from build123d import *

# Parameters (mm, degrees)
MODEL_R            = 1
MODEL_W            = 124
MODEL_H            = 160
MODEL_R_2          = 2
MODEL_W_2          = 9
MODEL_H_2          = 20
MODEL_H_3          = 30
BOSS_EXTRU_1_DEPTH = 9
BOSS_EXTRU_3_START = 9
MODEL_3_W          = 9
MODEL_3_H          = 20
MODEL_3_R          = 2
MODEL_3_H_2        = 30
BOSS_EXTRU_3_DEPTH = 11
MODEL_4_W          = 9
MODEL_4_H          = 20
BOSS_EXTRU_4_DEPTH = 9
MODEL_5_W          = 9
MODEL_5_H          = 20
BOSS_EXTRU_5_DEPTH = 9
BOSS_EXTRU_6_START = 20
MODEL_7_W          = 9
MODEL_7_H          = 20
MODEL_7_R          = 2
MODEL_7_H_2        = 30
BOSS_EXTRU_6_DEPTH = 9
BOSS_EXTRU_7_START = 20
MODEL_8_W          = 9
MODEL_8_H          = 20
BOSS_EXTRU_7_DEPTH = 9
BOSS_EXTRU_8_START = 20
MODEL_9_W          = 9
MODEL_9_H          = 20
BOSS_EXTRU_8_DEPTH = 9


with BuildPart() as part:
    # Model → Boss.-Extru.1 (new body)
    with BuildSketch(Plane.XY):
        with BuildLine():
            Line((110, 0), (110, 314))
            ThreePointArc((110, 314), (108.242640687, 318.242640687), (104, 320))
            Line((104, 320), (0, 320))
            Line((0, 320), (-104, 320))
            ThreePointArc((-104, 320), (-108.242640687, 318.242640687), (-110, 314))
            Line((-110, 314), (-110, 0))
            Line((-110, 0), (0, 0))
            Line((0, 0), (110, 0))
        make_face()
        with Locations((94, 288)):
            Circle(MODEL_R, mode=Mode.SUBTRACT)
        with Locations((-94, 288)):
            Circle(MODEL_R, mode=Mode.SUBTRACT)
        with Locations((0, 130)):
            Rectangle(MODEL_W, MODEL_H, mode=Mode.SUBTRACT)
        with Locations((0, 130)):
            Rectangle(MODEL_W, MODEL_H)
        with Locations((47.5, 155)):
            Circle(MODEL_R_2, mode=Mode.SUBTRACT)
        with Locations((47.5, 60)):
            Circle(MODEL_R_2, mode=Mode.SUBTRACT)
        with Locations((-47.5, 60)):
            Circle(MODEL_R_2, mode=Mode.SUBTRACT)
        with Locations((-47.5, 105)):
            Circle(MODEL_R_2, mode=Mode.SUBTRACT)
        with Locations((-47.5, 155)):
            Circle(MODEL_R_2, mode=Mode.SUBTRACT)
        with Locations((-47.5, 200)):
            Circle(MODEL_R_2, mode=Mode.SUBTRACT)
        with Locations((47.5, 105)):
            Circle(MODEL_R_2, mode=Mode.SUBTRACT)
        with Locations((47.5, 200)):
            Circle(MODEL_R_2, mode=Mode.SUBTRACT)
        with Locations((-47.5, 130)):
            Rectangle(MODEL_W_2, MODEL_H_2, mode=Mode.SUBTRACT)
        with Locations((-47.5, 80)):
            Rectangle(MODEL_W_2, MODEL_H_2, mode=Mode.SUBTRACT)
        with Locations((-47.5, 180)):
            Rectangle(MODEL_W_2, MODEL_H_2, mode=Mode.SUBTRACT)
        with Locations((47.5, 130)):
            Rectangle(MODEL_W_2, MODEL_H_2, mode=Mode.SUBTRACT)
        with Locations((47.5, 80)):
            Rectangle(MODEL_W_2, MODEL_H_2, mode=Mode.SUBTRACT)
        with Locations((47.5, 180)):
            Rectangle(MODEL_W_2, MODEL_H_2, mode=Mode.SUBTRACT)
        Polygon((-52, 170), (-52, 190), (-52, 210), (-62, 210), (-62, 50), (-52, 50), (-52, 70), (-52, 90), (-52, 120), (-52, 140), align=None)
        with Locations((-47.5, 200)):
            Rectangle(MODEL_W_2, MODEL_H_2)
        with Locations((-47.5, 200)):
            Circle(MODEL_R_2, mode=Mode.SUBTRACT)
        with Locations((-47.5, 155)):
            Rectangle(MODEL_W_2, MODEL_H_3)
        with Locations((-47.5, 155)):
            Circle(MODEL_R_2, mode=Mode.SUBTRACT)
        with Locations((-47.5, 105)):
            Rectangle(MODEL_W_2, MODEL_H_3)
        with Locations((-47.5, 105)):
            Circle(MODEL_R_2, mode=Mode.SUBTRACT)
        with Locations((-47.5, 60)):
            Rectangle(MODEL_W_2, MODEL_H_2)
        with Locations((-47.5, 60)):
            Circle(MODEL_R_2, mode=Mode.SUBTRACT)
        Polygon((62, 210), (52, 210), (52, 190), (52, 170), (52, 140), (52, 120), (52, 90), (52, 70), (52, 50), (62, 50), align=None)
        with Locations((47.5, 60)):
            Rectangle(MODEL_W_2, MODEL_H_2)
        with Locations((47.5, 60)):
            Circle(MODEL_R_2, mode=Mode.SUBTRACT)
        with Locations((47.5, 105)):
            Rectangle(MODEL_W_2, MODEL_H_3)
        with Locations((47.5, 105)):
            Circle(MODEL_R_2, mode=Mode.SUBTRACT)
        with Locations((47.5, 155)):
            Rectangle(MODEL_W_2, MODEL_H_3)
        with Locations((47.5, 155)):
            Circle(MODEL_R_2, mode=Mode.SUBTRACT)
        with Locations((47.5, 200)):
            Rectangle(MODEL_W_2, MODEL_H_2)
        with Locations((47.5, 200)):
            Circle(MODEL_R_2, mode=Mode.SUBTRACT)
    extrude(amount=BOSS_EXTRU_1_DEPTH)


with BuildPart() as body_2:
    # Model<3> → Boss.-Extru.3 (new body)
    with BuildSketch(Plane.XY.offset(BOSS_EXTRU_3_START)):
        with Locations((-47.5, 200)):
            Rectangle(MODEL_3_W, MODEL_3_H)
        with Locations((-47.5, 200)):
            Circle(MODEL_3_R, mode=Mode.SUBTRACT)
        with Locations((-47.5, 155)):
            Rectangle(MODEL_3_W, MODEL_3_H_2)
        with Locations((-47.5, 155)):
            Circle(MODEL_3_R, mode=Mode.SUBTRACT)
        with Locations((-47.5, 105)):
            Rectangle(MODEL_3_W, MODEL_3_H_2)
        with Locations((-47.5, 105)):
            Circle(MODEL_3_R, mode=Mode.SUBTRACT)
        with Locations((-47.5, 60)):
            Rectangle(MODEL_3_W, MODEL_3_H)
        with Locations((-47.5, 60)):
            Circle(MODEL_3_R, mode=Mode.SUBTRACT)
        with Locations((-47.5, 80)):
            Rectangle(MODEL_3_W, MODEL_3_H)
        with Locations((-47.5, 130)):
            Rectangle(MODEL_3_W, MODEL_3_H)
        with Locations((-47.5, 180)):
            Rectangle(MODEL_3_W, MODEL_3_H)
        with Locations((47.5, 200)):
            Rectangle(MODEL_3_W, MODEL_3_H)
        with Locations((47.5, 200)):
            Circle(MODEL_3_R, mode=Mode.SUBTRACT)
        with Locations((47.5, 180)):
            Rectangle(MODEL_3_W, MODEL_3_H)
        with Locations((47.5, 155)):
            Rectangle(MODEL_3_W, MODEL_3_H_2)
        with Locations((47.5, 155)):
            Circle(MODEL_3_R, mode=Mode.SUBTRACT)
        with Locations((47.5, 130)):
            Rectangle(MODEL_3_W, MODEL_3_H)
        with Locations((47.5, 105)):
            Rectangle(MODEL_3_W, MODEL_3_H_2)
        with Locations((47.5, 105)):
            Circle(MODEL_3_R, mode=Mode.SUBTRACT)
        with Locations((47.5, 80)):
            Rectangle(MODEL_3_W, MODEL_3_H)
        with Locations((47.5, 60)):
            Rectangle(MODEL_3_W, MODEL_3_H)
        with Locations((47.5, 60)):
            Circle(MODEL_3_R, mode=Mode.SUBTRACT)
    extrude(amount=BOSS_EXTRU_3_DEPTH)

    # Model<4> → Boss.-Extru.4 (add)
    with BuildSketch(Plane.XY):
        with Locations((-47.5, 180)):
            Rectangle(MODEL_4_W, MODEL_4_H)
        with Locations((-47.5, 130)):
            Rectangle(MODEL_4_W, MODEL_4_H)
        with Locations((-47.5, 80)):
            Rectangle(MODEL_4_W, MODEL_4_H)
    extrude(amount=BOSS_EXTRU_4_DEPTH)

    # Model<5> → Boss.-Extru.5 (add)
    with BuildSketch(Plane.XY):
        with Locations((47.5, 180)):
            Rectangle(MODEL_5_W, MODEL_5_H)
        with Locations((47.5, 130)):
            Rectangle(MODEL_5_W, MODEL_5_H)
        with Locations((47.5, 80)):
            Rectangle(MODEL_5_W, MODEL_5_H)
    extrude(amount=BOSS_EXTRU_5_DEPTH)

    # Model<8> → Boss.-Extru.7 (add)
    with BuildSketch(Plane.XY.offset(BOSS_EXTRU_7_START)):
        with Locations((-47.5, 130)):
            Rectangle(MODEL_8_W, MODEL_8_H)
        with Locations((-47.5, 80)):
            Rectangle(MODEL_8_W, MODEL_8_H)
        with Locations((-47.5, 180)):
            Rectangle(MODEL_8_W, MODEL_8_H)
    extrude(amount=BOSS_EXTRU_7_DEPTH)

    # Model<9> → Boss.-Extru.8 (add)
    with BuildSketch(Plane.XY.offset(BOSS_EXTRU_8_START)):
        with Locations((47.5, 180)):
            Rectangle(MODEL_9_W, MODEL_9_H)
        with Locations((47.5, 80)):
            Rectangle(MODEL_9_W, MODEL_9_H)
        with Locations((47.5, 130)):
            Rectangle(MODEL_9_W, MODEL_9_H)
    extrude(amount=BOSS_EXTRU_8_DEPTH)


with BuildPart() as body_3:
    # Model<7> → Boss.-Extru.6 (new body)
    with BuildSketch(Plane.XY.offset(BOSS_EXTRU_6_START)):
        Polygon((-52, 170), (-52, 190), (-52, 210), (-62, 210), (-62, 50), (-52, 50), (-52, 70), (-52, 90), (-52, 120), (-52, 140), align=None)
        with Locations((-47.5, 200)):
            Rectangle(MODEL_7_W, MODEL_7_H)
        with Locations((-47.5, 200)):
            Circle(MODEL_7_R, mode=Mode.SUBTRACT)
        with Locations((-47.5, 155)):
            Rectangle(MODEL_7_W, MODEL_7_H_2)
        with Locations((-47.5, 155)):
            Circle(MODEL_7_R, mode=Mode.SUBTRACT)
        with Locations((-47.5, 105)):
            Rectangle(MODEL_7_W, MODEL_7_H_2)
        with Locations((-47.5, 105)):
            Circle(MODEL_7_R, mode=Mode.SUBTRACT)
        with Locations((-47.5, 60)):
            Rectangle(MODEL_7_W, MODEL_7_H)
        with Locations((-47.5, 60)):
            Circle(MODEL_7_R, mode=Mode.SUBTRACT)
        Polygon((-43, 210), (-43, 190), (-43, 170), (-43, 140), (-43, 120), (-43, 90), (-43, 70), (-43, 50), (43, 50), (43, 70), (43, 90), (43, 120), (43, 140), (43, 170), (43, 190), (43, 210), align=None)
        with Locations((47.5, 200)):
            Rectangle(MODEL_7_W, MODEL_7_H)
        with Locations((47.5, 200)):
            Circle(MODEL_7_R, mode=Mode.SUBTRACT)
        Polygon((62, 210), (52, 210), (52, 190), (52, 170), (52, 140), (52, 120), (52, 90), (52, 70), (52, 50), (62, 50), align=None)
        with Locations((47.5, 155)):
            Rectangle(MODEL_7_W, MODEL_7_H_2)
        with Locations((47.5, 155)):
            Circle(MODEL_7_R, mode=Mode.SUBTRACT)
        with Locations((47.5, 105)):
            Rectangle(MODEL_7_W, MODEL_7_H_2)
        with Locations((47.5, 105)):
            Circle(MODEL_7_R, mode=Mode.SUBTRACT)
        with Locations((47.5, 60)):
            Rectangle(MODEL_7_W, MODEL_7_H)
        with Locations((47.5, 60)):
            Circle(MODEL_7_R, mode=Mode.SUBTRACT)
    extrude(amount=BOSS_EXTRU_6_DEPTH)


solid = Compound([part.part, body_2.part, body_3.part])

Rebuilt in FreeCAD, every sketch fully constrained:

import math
import FreeCAD as App
import Part
import Sketcher
Q = App.Units.Quantity


def add_polygon(sketch, points):
    """Adds a closed chain of lines whose ends are joined by coincident constraints."""
    first, n = sketch.GeometryCount, len(points)
    for a, b in zip(points, points[1:] + points[:1]):
        sketch.addGeometry(Part.LineSegment(App.Vector(*a, 0), App.Vector(*b, 0)), False)
    for i in range(n):
        sketch.addConstraint(Sketcher.Constraint("Coincident", first + i, 2, first + (i + 1) % n, 1))

doc = App.newDocument("Part")
body = doc.addObject("PartDesign::Body", "Body")

sketch1 = doc.addObject("Sketcher::SketchObject", "Sketch")
body.addObject(sketch1)
sketch1.AttachmentSupport = (doc.XY_Plane, [""])
sketch1.MapMode = "FlatFace"
sketch1.addGeometry(Part.LineSegment(App.Vector(110, 0, 0), App.Vector(110, 314, 0)), False)
sketch1.addGeometry(Part.ArcOfCircle(Part.Circle(App.Vector(104, 314, 0), App.Vector(0, 0, 1), 6), math.radians(0), math.radians(90)), False)
sketch1.addGeometry(Part.LineSegment(App.Vector(104, 320, 0), App.Vector(-104, 320, 0)), False)
sketch1.addGeometry(Part.ArcOfCircle(Part.Circle(App.Vector(-104, 314, 0), App.Vector(0, 0, 1), 6), math.radians(90), math.radians(180)), False)
sketch1.addGeometry(Part.LineSegment(App.Vector(-110, 314, 0), App.Vector(-110, 0, 0)), False)
sketch1.addGeometry(Part.LineSegment(App.Vector(-110, 0, 0), App.Vector(110, 0, 0)), False)
sketch1.addGeometry(Part.Circle(App.Vector(-47.5, 60, 0), App.Vector(0, 0, 1), 2), False)
add_polygon(sketch1, [(-43, 90), (-43, 70), (-52, 70), (-52, 90)])
sketch1.addGeometry(Part.Circle(App.Vector(-47.5, 105, 0), App.Vector(0, 0, 1), 2), False)
add_polygon(sketch1, [(-43, 140), (-43, 120), (-52, 120), (-52, 140)])
sketch1.addGeometry(Part.Circle(App.Vector(-47.5, 155, 0), App.Vector(0, 0, 1), 2), False)
sketch1.addGeometry(Part.Circle(App.Vector(47.5, 60, 0), App.Vector(0, 0, 1), 2), False)
add_polygon(sketch1, [(52, 90), (52, 70), (43, 70), (43, 90)])
sketch1.addGeometry(Part.Circle(App.Vector(47.5, 105, 0), App.Vector(0, 0, 1), 2), False)
add_polygon(sketch1, [(52, 140), (52, 120), (43, 120), (43, 140)])
sketch1.addGeometry(Part.Circle(App.Vector(47.5, 155, 0), App.Vector(0, 0, 1), 2), False)
add_polygon(sketch1, [(-43, 190), (-43, 170), (-52, 170), (-52, 190)])
sketch1.addGeometry(Part.Circle(App.Vector(-47.5, 200, 0), App.Vector(0, 0, 1), 2), False)
sketch1.addGeometry(Part.Circle(App.Vector(-94, 288, 0), App.Vector(0, 0, 1), 1), False)
add_polygon(sketch1, [(52, 190), (52, 170), (43, 170), (43, 190)])
sketch1.addGeometry(Part.Circle(App.Vector(47.5, 200, 0), App.Vector(0, 0, 1), 2), False)
sketch1.addGeometry(Part.Circle(App.Vector(94, 288, 0), App.Vector(0, 0, 1), 1), False)
sketch1.addConstraint(Sketcher.Constraint("Tangent", 0, 2, 1, 1))
sketch1.addConstraint(Sketcher.Constraint("Tangent", 1, 2, 2, 1))
sketch1.addConstraint(Sketcher.Constraint("Tangent", 2, 2, 3, 1))
sketch1.addConstraint(Sketcher.Constraint("Tangent", 3, 2, 4, 1))
sketch1.addConstraint(Sketcher.Constraint("Coincident", 4, 2, 5, 1))
sketch1.addConstraint(Sketcher.Constraint("Coincident", 5, 2, 0, 1))
sketch1.addConstraint(Sketcher.Constraint("Vertical", 0))
sketch1.addConstraint(Sketcher.Constraint("Horizontal", 2))
sketch1.addConstraint(Sketcher.Constraint("Vertical", 4))
sketch1.addConstraint(Sketcher.Constraint("Horizontal", 5))
sketch1.addConstraint(Sketcher.Constraint("Vertical", 7))
sketch1.addConstraint(Sketcher.Constraint("Horizontal", 8))
sketch1.addConstraint(Sketcher.Constraint("Vertical", 9))
sketch1.addConstraint(Sketcher.Constraint("Horizontal", 10))
sketch1.addConstraint(Sketcher.Constraint("Vertical", 12))
sketch1.addConstraint(Sketcher.Constraint("Horizontal", 13))
sketch1.addConstraint(Sketcher.Constraint("Vertical", 14))
sketch1.addConstraint(Sketcher.Constraint("Horizontal", 15))
sketch1.addConstraint(Sketcher.Constraint("Vertical", 18))
sketch1.addConstraint(Sketcher.Constraint("Horizontal", 19))
sketch1.addConstraint(Sketcher.Constraint("Vertical", 20))
sketch1.addConstraint(Sketcher.Constraint("Horizontal", 21))
sketch1.addConstraint(Sketcher.Constraint("Vertical", 23))
sketch1.addConstraint(Sketcher.Constraint("Horizontal", 24))
sketch1.addConstraint(Sketcher.Constraint("Vertical", 25))
sketch1.addConstraint(Sketcher.Constraint("Horizontal", 26))
sketch1.addConstraint(Sketcher.Constraint("Vertical", 28))
sketch1.addConstraint(Sketcher.Constraint("Horizontal", 29))
sketch1.addConstraint(Sketcher.Constraint("Vertical", 30))
sketch1.addConstraint(Sketcher.Constraint("Horizontal", 31))
sketch1.addConstraint(Sketcher.Constraint("Vertical", 34))
sketch1.addConstraint(Sketcher.Constraint("Horizontal", 35))
sketch1.addConstraint(Sketcher.Constraint("Vertical", 36))
sketch1.addConstraint(Sketcher.Constraint("Horizontal", 37))
sketch1.addConstraint(Sketcher.Constraint("Equal", 1, 3))
sketch1.addConstraint(Sketcher.Constraint("Equal", 6, 11))
sketch1.addConstraint(Sketcher.Constraint("Equal", 11, 16))
sketch1.addConstraint(Sketcher.Constraint("Equal", 16, 17))
sketch1.addConstraint(Sketcher.Constraint("Equal", 17, 22))
sketch1.addConstraint(Sketcher.Constraint("Equal", 22, 27))
sketch1.addConstraint(Sketcher.Constraint("Equal", 27, 32))
sketch1.addConstraint(Sketcher.Constraint("Equal", 32, 38))
sketch1.addConstraint(Sketcher.Constraint("Equal", 33, 39))
sketch1.addConstraint(Sketcher.Constraint("Symmetric", 4, 2, 5, 2, -1, 1))
sketch1.addConstraint(Sketcher.Constraint("Symmetric", 6, 3, 17, 3, -2))
sketch1.addConstraint(Sketcher.Constraint("Symmetric", 11, 3, 22, 3, -2))
sketch1.addConstraint(Sketcher.Constraint("Symmetric", 16, 3, 27, 3, -2))
sketch1.addConstraint(Sketcher.Constraint("Symmetric", 32, 3, 38, 3, -2))
sketch1.addConstraint(Sketcher.Constraint("Symmetric", 33, 3, 39, 3, -2))
sketch1.addConstraint(Sketcher.Constraint("Symmetric", 8, 2, 18, 2, -2))
sketch1.addConstraint(Sketcher.Constraint("Symmetric", 10, 2, 20, 2, -2))
sketch1.addConstraint(Sketcher.Constraint("Symmetric", 13, 2, 23, 2, -2))
sketch1.addConstraint(Sketcher.Constraint("Symmetric", 15, 2, 25, 2, -2))
sketch1.addConstraint(Sketcher.Constraint("Symmetric", 29, 2, 34, 2, -2))
sketch1.addConstraint(Sketcher.Constraint("Symmetric", 31, 2, 36, 2, -2))
sketch1.addConstraint(Sketcher.Constraint("Vertical", 6, 3, 11, 3))
sketch1.addConstraint(Sketcher.Constraint("Vertical", 11, 3, 16, 3))
sketch1.addConstraint(Sketcher.Constraint("Vertical", 16, 3, 32, 3))
sketch1.addConstraint(Sketcher.Constraint("Vertical", 10, 2, 12, 2))
sketch1.addConstraint(Sketcher.Constraint("Vertical", 9, 2, 13, 2))
sketch1.addConstraint(Sketcher.Constraint("Vertical", 15, 2, 28, 2))
sketch1.addConstraint(Sketcher.Constraint("Vertical", 14, 2, 29, 2))
sketch1.addConstraint(Sketcher.Constraint("Equal", 9, 12))
sketch1.addConstraint(Sketcher.Constraint("Equal", 25, 28))
sketch1.addConstraint(Sketcher.Constraint("Diameter", 6, Q("4 mm")))
sketch1.addConstraint(Sketcher.Constraint("Diameter", 33, Q("2 mm")))
sketch1.addConstraint(Sketcher.Constraint("Radius", 1, Q("6 mm")))
sketch1.addConstraint(Sketcher.Constraint("DistanceX", 2, 2, 2, 1, Q("208 mm")))
sketch1.addConstraint(Sketcher.Constraint("DistanceX", 8, 2, 8, 1, Q("9 mm")))
sketch1.addConstraint(Sketcher.Constraint("DistanceY", 0, 1, 0, 2, Q("314 mm")))
sketch1.addConstraint(Sketcher.Constraint("DistanceY", 7, 2, 7, 1, Q("20 mm")))
sketch1.addConstraint(Sketcher.Constraint("DistanceY", -1, 1, 6, 3, Q("60 mm")))
sketch1.addConstraint(Sketcher.Constraint("DistanceY", -1, 1, 11, 3, Q("105 mm")))
sketch1.addConstraint(Sketcher.Constraint("DistanceY", -1, 1, 16, 3, Q("155 mm")))
sketch1.addConstraint(Sketcher.Constraint("DistanceY", -1, 1, 32, 3, Q("200 mm")))
sketch1.addConstraint(Sketcher.Constraint("DistanceX", 33, 3, -1, 1, Q("94 mm")))
sketch1.addConstraint(Sketcher.Constraint("DistanceY", -1, 1, 33, 3, Q("288 mm")))
sketch1.addConstraint(Sketcher.Constraint("DistanceX", 7, 2, -1, 1, Q("43 mm")))
sketch1.addConstraint(Sketcher.Constraint("DistanceY", -1, 1, 7, 2, Q("70 mm")))
sketch1.addConstraint(Sketcher.Constraint("DistanceY", -1, 1, 12, 2, Q("120 mm")))
sketch1.addConstraint(Sketcher.Constraint("DistanceY", -1, 1, 28, 2, Q("170 mm")))
sketch1.addConstraint(Sketcher.Constraint("DistanceX", 6, 3, 17, 3, Q("95 mm")))
pad1 = doc.addObject("PartDesign::Pad", "Pad")
body.addObject(pad1)
pad1.Profile = sketch1
pad1.Length = 9
body2 = doc.addObject("PartDesign::Body", "Body001")
body2.AllowCompound = True

sketch2 = doc.addObject("Sketcher::SketchObject", "Sketch001")
body2.addObject(sketch2)
sketch2.AttachmentSupport = (doc.getObject("XY_Plane001"), [""])
sketch2.MapMode = "FlatFace"
sketch2.AttachmentOffset = App.Placement(App.Vector(0, 0, 9), App.Rotation())
add_polygon(sketch2, [(-52, 210), (-52, 50), (-43, 50), (-43, 210)])
sketch2.addGeometry(Part.Circle(App.Vector(-47.5, 200, 0), App.Vector(0, 0, 1), 2), False)
sketch2.addGeometry(Part.Circle(App.Vector(-47.5, 105, 0), App.Vector(0, 0, 1), 2), False)
sketch2.addGeometry(Part.Circle(App.Vector(-47.5, 155, 0), App.Vector(0, 0, 1), 2), False)
sketch2.addGeometry(Part.Circle(App.Vector(-47.5, 60, 0), App.Vector(0, 0, 1), 2), False)
add_polygon(sketch2, [(43, 210), (43, 50), (52, 50), (52, 210)])
sketch2.addGeometry(Part.Circle(App.Vector(47.5, 60, 0), App.Vector(0, 0, 1), 2), False)
sketch2.addGeometry(Part.Circle(App.Vector(47.5, 105, 0), App.Vector(0, 0, 1), 2), False)
sketch2.addGeometry(Part.Circle(App.Vector(47.5, 155, 0), App.Vector(0, 0, 1), 2), False)
sketch2.addGeometry(Part.Circle(App.Vector(47.5, 200, 0), App.Vector(0, 0, 1), 2), False)
sketch2.addConstraint(Sketcher.Constraint("Vertical", 0))
sketch2.addConstraint(Sketcher.Constraint("Horizontal", 1))
sketch2.addConstraint(Sketcher.Constraint("Vertical", 2))
sketch2.addConstraint(Sketcher.Constraint("Horizontal", 3))
sketch2.addConstraint(Sketcher.Constraint("Vertical", 8))
sketch2.addConstraint(Sketcher.Constraint("Horizontal", 9))
sketch2.addConstraint(Sketcher.Constraint("Vertical", 10))
sketch2.addConstraint(Sketcher.Constraint("Horizontal", 11))
sketch2.addConstraint(Sketcher.Constraint("Equal", 4, 5))
sketch2.addConstraint(Sketcher.Constraint("Equal", 5, 6))
sketch2.addConstraint(Sketcher.Constraint("Equal", 6, 7))
sketch2.addConstraint(Sketcher.Constraint("Equal", 7, 12))
sketch2.addConstraint(Sketcher.Constraint("Equal", 12, 13))
sketch2.addConstraint(Sketcher.Constraint("Equal", 13, 14))
sketch2.addConstraint(Sketcher.Constraint("Equal", 14, 15))
sketch2.addConstraint(Sketcher.Constraint("Symmetric", 7, 3, 12, 3, -2))
sketch2.addConstraint(Sketcher.Constraint("Symmetric", 5, 3, 13, 3, -2))
sketch2.addConstraint(Sketcher.Constraint("Symmetric", 6, 3, 14, 3, -2))
sketch2.addConstraint(Sketcher.Constraint("Symmetric", 4, 3, 15, 3, -2))
sketch2.addConstraint(Sketcher.Constraint("Symmetric", 1, 2, 8, 2, -2))
sketch2.addConstraint(Sketcher.Constraint("Symmetric", 3, 2, 10, 2, -2))
sketch2.addConstraint(Sketcher.Constraint("Vertical", 4, 3, 5, 3))
sketch2.addConstraint(Sketcher.Constraint("Vertical", 5, 3, 6, 3))
sketch2.addConstraint(Sketcher.Constraint("Vertical", 6, 3, 7, 3))
sketch2.addConstraint(Sketcher.Constraint("Diameter", 4, Q("4 mm")))
sketch2.addConstraint(Sketcher.Constraint("DistanceX", 1, 1, 1, 2, Q("9 mm")))
sketch2.addConstraint(Sketcher.Constraint("DistanceY", 0, 2, 0, 1, Q("160 mm")))
sketch2.addConstraint(Sketcher.Constraint("DistanceY", -1, 1, 4, 3, Q("200 mm")))
sketch2.addConstraint(Sketcher.Constraint("DistanceY", -1, 1, 5, 3, Q("105 mm")))
sketch2.addConstraint(Sketcher.Constraint("DistanceY", -1, 1, 6, 3, Q("155 mm")))
sketch2.addConstraint(Sketcher.Constraint("DistanceY", -1, 1, 7, 3, Q("60 mm")))
sketch2.addConstraint(Sketcher.Constraint("DistanceX", 0, 2, -1, 1, Q("52 mm")))
sketch2.addConstraint(Sketcher.Constraint("DistanceY", -1, 1, 0, 2, Q("50 mm")))
sketch2.addConstraint(Sketcher.Constraint("DistanceX", 7, 3, 12, 3, Q("95 mm")))
pad2 = doc.addObject("PartDesign::Pad", "Pad001")
body2.addObject(pad2)
pad2.Profile = sketch2
pad2.Length = 11

sketch3 = doc.addObject("Sketcher::SketchObject", "Sketch002")
body2.addObject(sketch3)
sketch3.AttachmentSupport = (doc.getObject("XY_Plane001"), [""])
sketch3.MapMode = "FlatFace"
add_polygon(sketch3, [(-52, 190), (-52, 170), (-43, 170), (-43, 190)])
add_polygon(sketch3, [(-52, 140), (-52, 120), (-43, 120), (-43, 140)])
add_polygon(sketch3, [(-52, 90), (-52, 70), (-43, 70), (-43, 90)])
sketch3.addConstraint(Sketcher.Constraint("Vertical", 0))
sketch3.addConstraint(Sketcher.Constraint("Horizontal", 1))
sketch3.addConstraint(Sketcher.Constraint("Vertical", 2))
sketch3.addConstraint(Sketcher.Constraint("Horizontal", 3))
sketch3.addConstraint(Sketcher.Constraint("Vertical", 4))
sketch3.addConstraint(Sketcher.Constraint("Horizontal", 5))
sketch3.addConstraint(Sketcher.Constraint("Vertical", 6))
sketch3.addConstraint(Sketcher.Constraint("Horizontal", 7))
sketch3.addConstraint(Sketcher.Constraint("Vertical", 8))
sketch3.addConstraint(Sketcher.Constraint("Horizontal", 9))
sketch3.addConstraint(Sketcher.Constraint("Vertical", 10))
sketch3.addConstraint(Sketcher.Constraint("Horizontal", 11))
sketch3.addConstraint(Sketcher.Constraint("Vertical", 3, 2, 4, 2))
sketch3.addConstraint(Sketcher.Constraint("Vertical", 2, 2, 5, 2))
sketch3.addConstraint(Sketcher.Constraint("Vertical", 7, 2, 8, 2))
sketch3.addConstraint(Sketcher.Constraint("Vertical", 6, 2, 9, 2))
sketch3.addConstraint(Sketcher.Constraint("Equal", 2, 4))
sketch3.addConstraint(Sketcher.Constraint("Equal", 6, 8))
sketch3.addConstraint(Sketcher.Constraint("DistanceX", 1, 1, 1, 2, Q("9 mm")))
sketch3.addConstraint(Sketcher.Constraint("DistanceY", 0, 2, 0, 1, Q("20 mm")))
sketch3.addConstraint(Sketcher.Constraint("DistanceX", 0, 2, -1, 1, Q("52 mm")))
sketch3.addConstraint(Sketcher.Constraint("DistanceY", -1, 1, 0, 2, Q("170 mm")))
sketch3.addConstraint(Sketcher.Constraint("DistanceY", -1, 1, 4, 2, Q("120 mm")))
sketch3.addConstraint(Sketcher.Constraint("DistanceY", -1, 1, 8, 2, Q("70 mm")))
pad3 = doc.addObject("PartDesign::Pad", "Pad002")
body2.addObject(pad3)
pad3.Profile = sketch3
pad3.Length = 9

sketch4 = doc.addObject("Sketcher::SketchObject", "Sketch003")
body2.addObject(sketch4)
sketch4.AttachmentSupport = (doc.getObject("XY_Plane001"), [""])
sketch4.MapMode = "FlatFace"
add_polygon(sketch4, [(43, 190), (43, 170), (52, 170), (52, 190)])
add_polygon(sketch4, [(43, 140), (43, 120), (52, 120), (52, 140)])
add_polygon(sketch4, [(43, 90), (43, 70), (52, 70), (52, 90)])
sketch4.addConstraint(Sketcher.Constraint("Vertical", 0))
sketch4.addConstraint(Sketcher.Constraint("Horizontal", 1))
sketch4.addConstraint(Sketcher.Constraint("Vertical", 2))
sketch4.addConstraint(Sketcher.Constraint("Horizontal", 3))
sketch4.addConstraint(Sketcher.Constraint("Vertical", 4))
sketch4.addConstraint(Sketcher.Constraint("Horizontal", 5))
sketch4.addConstraint(Sketcher.Constraint("Vertical", 6))
sketch4.addConstraint(Sketcher.Constraint("Horizontal", 7))
sketch4.addConstraint(Sketcher.Constraint("Vertical", 8))
sketch4.addConstraint(Sketcher.Constraint("Horizontal", 9))
sketch4.addConstraint(Sketcher.Constraint("Vertical", 10))
sketch4.addConstraint(Sketcher.Constraint("Horizontal", 11))
sketch4.addConstraint(Sketcher.Constraint("Vertical", 3, 2, 4, 2))
sketch4.addConstraint(Sketcher.Constraint("Vertical", 2, 2, 5, 2))
sketch4.addConstraint(Sketcher.Constraint("Vertical", 7, 2, 8, 2))
sketch4.addConstraint(Sketcher.Constraint("Vertical", 6, 2, 9, 2))
sketch4.addConstraint(Sketcher.Constraint("Equal", 2, 4))
sketch4.addConstraint(Sketcher.Constraint("Equal", 6, 8))
sketch4.addConstraint(Sketcher.Constraint("DistanceX", 1, 1, 1, 2, Q("9 mm")))
sketch4.addConstraint(Sketcher.Constraint("DistanceY", 0, 2, 0, 1, Q("20 mm")))
sketch4.addConstraint(Sketcher.Constraint("DistanceX", -1, 1, 0, 2, Q("43 mm")))
sketch4.addConstraint(Sketcher.Constraint("DistanceY", -1, 1, 0, 2, Q("170 mm")))
sketch4.addConstraint(Sketcher.Constraint("DistanceY", -1, 1, 4, 2, Q("120 mm")))
sketch4.addConstraint(Sketcher.Constraint("DistanceY", -1, 1, 8, 2, Q("70 mm")))
pad4 = doc.addObject("PartDesign::Pad", "Pad003")
body2.addObject(pad4)
pad4.Profile = sketch4
pad4.Length = 9

sketch5 = doc.addObject("Sketcher::SketchObject", "Sketch004")
body2.addObject(sketch5)
sketch5.AttachmentSupport = (doc.getObject("XY_Plane001"), [""])
sketch5.MapMode = "FlatFace"
sketch5.AttachmentOffset = App.Placement(App.Vector(0, 0, 20), App.Rotation())
add_polygon(sketch5, [(-52, 140), (-52, 120), (-43, 120), (-43, 140)])
add_polygon(sketch5, [(-52, 90), (-52, 70), (-43, 70), (-43, 90)])
add_polygon(sketch5, [(-52, 190), (-52, 170), (-43, 170), (-43, 190)])
sketch5.addConstraint(Sketcher.Constraint("Vertical", 0))
sketch5.addConstraint(Sketcher.Constraint("Horizontal", 1))
sketch5.addConstraint(Sketcher.Constraint("Vertical", 2))
sketch5.addConstraint(Sketcher.Constraint("Horizontal", 3))
sketch5.addConstraint(Sketcher.Constraint("Vertical", 4))
sketch5.addConstraint(Sketcher.Constraint("Horizontal", 5))
sketch5.addConstraint(Sketcher.Constraint("Vertical", 6))
sketch5.addConstraint(Sketcher.Constraint("Horizontal", 7))
sketch5.addConstraint(Sketcher.Constraint("Vertical", 8))
sketch5.addConstraint(Sketcher.Constraint("Horizontal", 9))
sketch5.addConstraint(Sketcher.Constraint("Vertical", 10))
sketch5.addConstraint(Sketcher.Constraint("Horizontal", 11))
sketch5.addConstraint(Sketcher.Constraint("Vertical", 3, 2, 4, 2))
sketch5.addConstraint(Sketcher.Constraint("Vertical", 2, 2, 5, 2))
sketch5.addConstraint(Sketcher.Constraint("Vertical", 7, 2, 8, 2))
sketch5.addConstraint(Sketcher.Constraint("Vertical", 6, 2, 9, 2))
sketch5.addConstraint(Sketcher.Constraint("Equal", 2, 4))
sketch5.addConstraint(Sketcher.Constraint("Equal", 6, 8))
sketch5.addConstraint(Sketcher.Constraint("DistanceX", 1, 1, 1, 2, Q("9 mm")))
sketch5.addConstraint(Sketcher.Constraint("DistanceY", 0, 2, 0, 1, Q("20 mm")))
sketch5.addConstraint(Sketcher.Constraint("DistanceX", 0, 2, -1, 1, Q("52 mm")))
sketch5.addConstraint(Sketcher.Constraint("DistanceY", -1, 1, 0, 2, Q("120 mm")))
sketch5.addConstraint(Sketcher.Constraint("DistanceY", -1, 1, 4, 2, Q("70 mm")))
sketch5.addConstraint(Sketcher.Constraint("DistanceY", -1, 1, 8, 2, Q("170 mm")))
pad5 = doc.addObject("PartDesign::Pad", "Pad004")
body2.addObject(pad5)
pad5.Profile = sketch5
pad5.Length = 9

sketch6 = doc.addObject("Sketcher::SketchObject", "Sketch005")
body2.addObject(sketch6)
sketch6.AttachmentSupport = (doc.getObject("XY_Plane001"), [""])
sketch6.MapMode = "FlatFace"
sketch6.AttachmentOffset = App.Placement(App.Vector(0, 0, 20), App.Rotation())
add_polygon(sketch6, [(43, 190), (43, 170), (52, 170), (52, 190)])
add_polygon(sketch6, [(43, 90), (43, 70), (52, 70), (52, 90)])
add_polygon(sketch6, [(43, 140), (43, 120), (52, 120), (52, 140)])
sketch6.addConstraint(Sketcher.Constraint("Vertical", 0))
sketch6.addConstraint(Sketcher.Constraint("Horizontal", 1))
sketch6.addConstraint(Sketcher.Constraint("Vertical", 2))
sketch6.addConstraint(Sketcher.Constraint("Horizontal", 3))
sketch6.addConstraint(Sketcher.Constraint("Vertical", 4))
sketch6.addConstraint(Sketcher.Constraint("Horizontal", 5))
sketch6.addConstraint(Sketcher.Constraint("Vertical", 6))
sketch6.addConstraint(Sketcher.Constraint("Horizontal", 7))
sketch6.addConstraint(Sketcher.Constraint("Vertical", 8))
sketch6.addConstraint(Sketcher.Constraint("Horizontal", 9))
sketch6.addConstraint(Sketcher.Constraint("Vertical", 10))
sketch6.addConstraint(Sketcher.Constraint("Horizontal", 11))
sketch6.addConstraint(Sketcher.Constraint("Vertical", 3, 2, 4, 2))
sketch6.addConstraint(Sketcher.Constraint("Vertical", 2, 2, 5, 2))
sketch6.addConstraint(Sketcher.Constraint("Vertical", 7, 2, 8, 2))
sketch6.addConstraint(Sketcher.Constraint("Vertical", 6, 2, 9, 2))
sketch6.addConstraint(Sketcher.Constraint("Equal", 2, 4))
sketch6.addConstraint(Sketcher.Constraint("Equal", 6, 8))
sketch6.addConstraint(Sketcher.Constraint("DistanceX", 1, 1, 1, 2, Q("9 mm")))
sketch6.addConstraint(Sketcher.Constraint("DistanceY", 0, 2, 0, 1, Q("20 mm")))
sketch6.addConstraint(Sketcher.Constraint("DistanceX", -1, 1, 0, 2, Q("43 mm")))
sketch6.addConstraint(Sketcher.Constraint("DistanceY", -1, 1, 0, 2, Q("170 mm")))
sketch6.addConstraint(Sketcher.Constraint("DistanceY", -1, 1, 4, 2, Q("70 mm")))
sketch6.addConstraint(Sketcher.Constraint("DistanceY", -1, 1, 8, 2, Q("120 mm")))
pad6 = doc.addObject("PartDesign::Pad", "Pad005")
body2.addObject(pad6)
pad6.Profile = sketch6
pad6.Length = 9
body3 = doc.addObject("PartDesign::Body", "Body002")

sketch7 = doc.addObject("Sketcher::SketchObject", "Sketch006")
body3.addObject(sketch7)
sketch7.AttachmentSupport = (doc.getObject("XY_Plane002"), [""])
sketch7.MapMode = "FlatFace"
sketch7.AttachmentOffset = App.Placement(App.Vector(0, 0, 20), App.Rotation())
add_polygon(sketch7, [(-62, 210), (-62, 50), (62, 50), (62, 210)])
sketch7.addGeometry(Part.Circle(App.Vector(-47.5, 60, 0), App.Vector(0, 0, 1), 2), False)
add_polygon(sketch7, [(-43, 70), (-52, 70), (-52, 90), (-43, 90)])
sketch7.addGeometry(Part.Circle(App.Vector(-47.5, 105, 0), App.Vector(0, 0, 1), 2), False)
sketch7.addGeometry(Part.Circle(App.Vector(47.5, 60, 0), App.Vector(0, 0, 1), 2), False)
add_polygon(sketch7, [(43, 70), (43, 90), (52, 90), (52, 70)])
sketch7.addGeometry(Part.Circle(App.Vector(47.5, 105, 0), App.Vector(0, 0, 1), 2), False)
add_polygon(sketch7, [(-52, 140), (-43, 140), (-43, 120), (-52, 120)])
sketch7.addGeometry(Part.Circle(App.Vector(-47.5, 155, 0), App.Vector(0, 0, 1), 2), False)
add_polygon(sketch7, [(-52, 190), (-43, 190), (-43, 170), (-52, 170)])
sketch7.addGeometry(Part.Circle(App.Vector(-47.5, 200, 0), App.Vector(0, 0, 1), 2), False)
add_polygon(sketch7, [(43, 120), (43, 140), (52, 140), (52, 120)])
sketch7.addGeometry(Part.Circle(App.Vector(47.5, 155, 0), App.Vector(0, 0, 1), 2), False)
add_polygon(sketch7, [(43, 170), (43, 190), (52, 190), (52, 170)])
sketch7.addGeometry(Part.Circle(App.Vector(47.5, 200, 0), App.Vector(0, 0, 1), 2), False)
sketch7.addConstraint(Sketcher.Constraint("Vertical", 0))
sketch7.addConstraint(Sketcher.Constraint("Horizontal", 1))
sketch7.addConstraint(Sketcher.Constraint("Vertical", 2))
sketch7.addConstraint(Sketcher.Constraint("Horizontal", 3))
sketch7.addConstraint(Sketcher.Constraint("Horizontal", 5))
sketch7.addConstraint(Sketcher.Constraint("Vertical", 6))
sketch7.addConstraint(Sketcher.Constraint("Horizontal", 7))
sketch7.addConstraint(Sketcher.Constraint("Vertical", 8))
sketch7.addConstraint(Sketcher.Constraint("Vertical", 11))
sketch7.addConstraint(Sketcher.Constraint("Horizontal", 12))
sketch7.addConstraint(Sketcher.Constraint("Vertical", 13))
sketch7.addConstraint(Sketcher.Constraint("Horizontal", 14))
sketch7.addConstraint(Sketcher.Constraint("Horizontal", 16))
sketch7.addConstraint(Sketcher.Constraint("Vertical", 17))
sketch7.addConstraint(Sketcher.Constraint("Horizontal", 18))
sketch7.addConstraint(Sketcher.Constraint("Vertical", 19))
sketch7.addConstraint(Sketcher.Constraint("Horizontal", 21))
sketch7.addConstraint(Sketcher.Constraint("Vertical", 22))
sketch7.addConstraint(Sketcher.Constraint("Horizontal", 23))
sketch7.addConstraint(Sketcher.Constraint("Vertical", 24))
sketch7.addConstraint(Sketcher.Constraint("Vertical", 26))
sketch7.addConstraint(Sketcher.Constraint("Horizontal", 27))
sketch7.addConstraint(Sketcher.Constraint("Vertical", 28))
sketch7.addConstraint(Sketcher.Constraint("Horizontal", 29))
sketch7.addConstraint(Sketcher.Constraint("Vertical", 31))
sketch7.addConstraint(Sketcher.Constraint("Horizontal", 32))
sketch7.addConstraint(Sketcher.Constraint("Vertical", 33))
sketch7.addConstraint(Sketcher.Constraint("Horizontal", 34))
sketch7.addConstraint(Sketcher.Constraint("Equal", 4, 9))
sketch7.addConstraint(Sketcher.Constraint("Equal", 9, 10))
sketch7.addConstraint(Sketcher.Constraint("Equal", 10, 15))
sketch7.addConstraint(Sketcher.Constraint("Equal", 15, 20))
sketch7.addConstraint(Sketcher.Constraint("Equal", 20, 25))
sketch7.addConstraint(Sketcher.Constraint("Equal", 25, 30))
sketch7.addConstraint(Sketcher.Constraint("Equal", 30, 35))
sketch7.addConstraint(Sketcher.Constraint("Symmetric", 4, 3, 10, 3, -2))
sketch7.addConstraint(Sketcher.Constraint("Symmetric", 9, 3, 15, 3, -2))
sketch7.addConstraint(Sketcher.Constraint("Symmetric", 20, 3, 30, 3, -2))
sketch7.addConstraint(Sketcher.Constraint("Symmetric", 25, 3, 35, 3, -2))
sketch7.addConstraint(Sketcher.Constraint("Symmetric", 7, 2, 11, 2, -2))
sketch7.addConstraint(Sketcher.Constraint("Symmetric", 5, 2, 13, 2, -2))
sketch7.addConstraint(Sketcher.Constraint("Symmetric", 16, 2, 26, 2, -2))
sketch7.addConstraint(Sketcher.Constraint("Symmetric", 18, 2, 28, 2, -2))
sketch7.addConstraint(Sketcher.Constraint("Symmetric", 21, 2, 31, 2, -2))
sketch7.addConstraint(Sketcher.Constraint("Symmetric", 23, 2, 33, 2, -2))
sketch7.addConstraint(Sketcher.Constraint("Vertical", 4, 3, 9, 3))
sketch7.addConstraint(Sketcher.Constraint("Vertical", 9, 3, 20, 3))
sketch7.addConstraint(Sketcher.Constraint("Vertical", 20, 3, 25, 3))
sketch7.addConstraint(Sketcher.Constraint("Vertical", 8, 2, 16, 2))
sketch7.addConstraint(Sketcher.Constraint("Vertical", 6, 2, 18, 2))
sketch7.addConstraint(Sketcher.Constraint("Vertical", 17, 2, 21, 2))
sketch7.addConstraint(Sketcher.Constraint("Vertical", 19, 2, 23, 2))
sketch7.addConstraint(Sketcher.Constraint("Equal", 13, 17))
sketch7.addConstraint(Sketcher.Constraint("Equal", 19, 22))
sketch7.addConstraint(Sketcher.Constraint("Diameter", 4, Q("4 mm")))
sketch7.addConstraint(Sketcher.Constraint("DistanceX", 1, 1, 1, 2, Q("124 mm")))
sketch7.addConstraint(Sketcher.Constraint("DistanceX", 5, 2, 5, 1, Q("9 mm")))
sketch7.addConstraint(Sketcher.Constraint("DistanceY", 0, 2, 0, 1, Q("160 mm")))
sketch7.addConstraint(Sketcher.Constraint("DistanceY", 6, 1, 6, 2, Q("20 mm")))
sketch7.addConstraint(Sketcher.Constraint("DistanceY", -1, 1, 4, 3, Q("60 mm")))
sketch7.addConstraint(Sketcher.Constraint("DistanceY", -1, 1, 9, 3, Q("105 mm")))
sketch7.addConstraint(Sketcher.Constraint("DistanceY", -1, 1, 20, 3, Q("155 mm")))
sketch7.addConstraint(Sketcher.Constraint("DistanceY", -1, 1, 25, 3, Q("200 mm")))
sketch7.addConstraint(Sketcher.Constraint("DistanceX", 0, 2, -1, 1, Q("62 mm")))
sketch7.addConstraint(Sketcher.Constraint("DistanceY", -1, 1, 0, 2, Q("50 mm")))
sketch7.addConstraint(Sketcher.Constraint("DistanceX", 5, 2, -1, 1, Q("52 mm")))
sketch7.addConstraint(Sketcher.Constraint("DistanceY", -1, 1, 5, 2, Q("70 mm")))
sketch7.addConstraint(Sketcher.Constraint("DistanceY", -1, 1, 16, 2, Q("140 mm")))
sketch7.addConstraint(Sketcher.Constraint("DistanceY", -1, 1, 21, 2, Q("190 mm")))
sketch7.addConstraint(Sketcher.Constraint("DistanceX", 4, 3, 10, 3, Q("95 mm")))
pad7 = doc.addObject("PartDesign::Pad", "Pad006")
body3.addObject(pad7)
pad7.Profile = sketch7
pad7.Length = 9

doc.recompute()
